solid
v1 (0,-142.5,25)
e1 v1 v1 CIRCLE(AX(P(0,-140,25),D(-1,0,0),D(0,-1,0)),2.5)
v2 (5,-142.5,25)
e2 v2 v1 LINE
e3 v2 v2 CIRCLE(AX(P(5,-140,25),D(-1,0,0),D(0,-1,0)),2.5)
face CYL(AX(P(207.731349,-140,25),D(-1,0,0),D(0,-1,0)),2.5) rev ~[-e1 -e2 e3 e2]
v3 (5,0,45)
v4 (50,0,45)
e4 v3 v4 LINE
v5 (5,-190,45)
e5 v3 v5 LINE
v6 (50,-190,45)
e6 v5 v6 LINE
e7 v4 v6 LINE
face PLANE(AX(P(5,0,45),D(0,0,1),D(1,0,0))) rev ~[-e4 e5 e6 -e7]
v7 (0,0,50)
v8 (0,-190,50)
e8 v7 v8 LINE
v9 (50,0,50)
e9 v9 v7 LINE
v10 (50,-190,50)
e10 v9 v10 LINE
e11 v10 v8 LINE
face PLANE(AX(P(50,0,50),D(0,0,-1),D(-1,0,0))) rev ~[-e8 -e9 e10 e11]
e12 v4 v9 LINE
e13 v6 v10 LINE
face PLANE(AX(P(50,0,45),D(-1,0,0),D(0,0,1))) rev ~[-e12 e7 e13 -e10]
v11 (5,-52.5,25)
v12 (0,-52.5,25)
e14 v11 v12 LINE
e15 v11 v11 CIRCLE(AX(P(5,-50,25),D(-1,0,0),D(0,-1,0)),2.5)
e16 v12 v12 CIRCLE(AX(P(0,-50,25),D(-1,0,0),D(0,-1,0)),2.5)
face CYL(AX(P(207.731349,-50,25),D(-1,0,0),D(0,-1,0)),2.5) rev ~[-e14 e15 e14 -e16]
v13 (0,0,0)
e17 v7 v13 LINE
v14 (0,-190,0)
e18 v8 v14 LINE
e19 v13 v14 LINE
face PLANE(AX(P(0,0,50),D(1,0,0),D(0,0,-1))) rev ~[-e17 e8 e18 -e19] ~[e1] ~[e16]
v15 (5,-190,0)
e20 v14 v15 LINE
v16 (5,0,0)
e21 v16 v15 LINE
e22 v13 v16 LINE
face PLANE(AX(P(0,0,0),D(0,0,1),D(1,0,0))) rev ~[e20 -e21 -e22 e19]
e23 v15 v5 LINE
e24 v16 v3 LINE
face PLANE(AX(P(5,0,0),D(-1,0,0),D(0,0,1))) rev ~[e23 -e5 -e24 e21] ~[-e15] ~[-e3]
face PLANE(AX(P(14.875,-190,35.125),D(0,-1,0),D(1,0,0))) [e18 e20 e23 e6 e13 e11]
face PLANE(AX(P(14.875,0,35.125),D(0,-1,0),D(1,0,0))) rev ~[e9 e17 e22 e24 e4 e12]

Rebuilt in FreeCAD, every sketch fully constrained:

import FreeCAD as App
import Part
import Sketcher

V = App.Vector
Q = App.Units.Quantity


def add_polygon(sketch, points):
    """Adds a closed chain of lines whose ends are joined by coincident constraints."""
    first, n = sketch.GeometryCount, len(points)
    for a, b in zip(points, points[1:] + points[:1]):
        sketch.addGeometry(Part.LineSegment(App.Vector(*a, 0), App.Vector(*b, 0)), False)
    for i in range(n):
        sketch.addConstraint(Sketcher.Constraint("Coincident", first + i, 2, first + (i + 1) % n, 1))

doc = App.newDocument("Part")
body = doc.addObject("PartDesign::Body", "Body")

# Sketch on XZ plane
sketch1 = doc.addObject("Sketcher::SketchObject", "Sketch")
body.addObject(sketch1)
sketch1.AttachmentSupport = (doc.XZ_Plane, [""])
sketch1.MapMode = "FlatFace"
add_polygon(sketch1, [(0, 50), (0, 0), (5, 0), (5, 45), (50, 45), (50, 50)])  # lines 0-5
sketch1.addConstraint(Sketcher.Constraint("Vertical", 0))
sketch1.addConstraint(Sketcher.Constraint("Horizontal", 1))
sketch1.addConstraint(Sketcher.Constraint("Vertical", 2))
sketch1.addConstraint(Sketcher.Constraint("Horizontal", 3))
sketch1.addConstraint(Sketcher.Constraint("Vertical", 4))
sketch1.addConstraint(Sketcher.Constraint("Horizontal", 5))
sketch1.addConstraint(Sketcher.Constraint("Coincident", 0, 2, -1, 1))
sketch1.addConstraint(Sketcher.Constraint("Equal", 5, 0))
sketch1.addConstraint(Sketcher.Constraint("Equal", 3, 2))
sketch1.addConstraint(Sketcher.Constraint("DistanceX", 1, 1, 1, 2, Q("5 mm")))
sketch1.addConstraint(Sketcher.Constraint("DistanceX", 3, 1, 3, 2, Q("45 mm")))
pad1 = doc.addObject("PartDesign::Pad", "Pad")
body.addObject(pad1)
pad1.Profile = sketch1
pad1.Length = 190

# Sketch on YZ plane
sketch2 = doc.addObject("Sketcher::SketchObject", "Sketch001")
body.addObject(sketch2)
sketch2.AttachmentSupport = (doc.YZ_Plane, [""])
sketch2.MapMode = "FlatFace"
sketch2.AttachmentOffset = App.Placement(V(0, 0, 5), App.Rotation())
sketch2.addGeometry(Part.Circle(V(-140, 25, 0), V(0, 0, 1), 2.5), False)
sketch2.addGeometry(Part.Circle(V(-50, 25, 0), V(0, 0, 1), 2.5), False)
sketch2.addConstraint(Sketcher.Constraint("Equal", 0, 1))
sketch2.addConstraint(Sketcher.Constraint("Horizontal", 0, 3, 1, 3))
sketch2.addConstraint(Sketcher.Constraint("Diameter", 0, Q("5 mm")))
sketch2.addConstraint(Sketcher.Constraint("DistanceX", 0, 3, -1, 1, Q("140 mm")))
sketch2.addConstraint(Sketcher.Constraint("DistanceY", -1, 1, 0, 3, Q("25 mm")))
sketch2.addConstraint(Sketcher.Constraint("DistanceX", 1, 3, -1, 1, Q("50 mm")))
doc.recompute()
hole = doc.addObject("PartDesign::Hole", "Hole")
body.addObject(hole)
hole.Profile = sketch2
hole.ThreadType = "None"
hole.Diameter = 5
hole.DepthType = "ThroughAll"

doc.recompute()
